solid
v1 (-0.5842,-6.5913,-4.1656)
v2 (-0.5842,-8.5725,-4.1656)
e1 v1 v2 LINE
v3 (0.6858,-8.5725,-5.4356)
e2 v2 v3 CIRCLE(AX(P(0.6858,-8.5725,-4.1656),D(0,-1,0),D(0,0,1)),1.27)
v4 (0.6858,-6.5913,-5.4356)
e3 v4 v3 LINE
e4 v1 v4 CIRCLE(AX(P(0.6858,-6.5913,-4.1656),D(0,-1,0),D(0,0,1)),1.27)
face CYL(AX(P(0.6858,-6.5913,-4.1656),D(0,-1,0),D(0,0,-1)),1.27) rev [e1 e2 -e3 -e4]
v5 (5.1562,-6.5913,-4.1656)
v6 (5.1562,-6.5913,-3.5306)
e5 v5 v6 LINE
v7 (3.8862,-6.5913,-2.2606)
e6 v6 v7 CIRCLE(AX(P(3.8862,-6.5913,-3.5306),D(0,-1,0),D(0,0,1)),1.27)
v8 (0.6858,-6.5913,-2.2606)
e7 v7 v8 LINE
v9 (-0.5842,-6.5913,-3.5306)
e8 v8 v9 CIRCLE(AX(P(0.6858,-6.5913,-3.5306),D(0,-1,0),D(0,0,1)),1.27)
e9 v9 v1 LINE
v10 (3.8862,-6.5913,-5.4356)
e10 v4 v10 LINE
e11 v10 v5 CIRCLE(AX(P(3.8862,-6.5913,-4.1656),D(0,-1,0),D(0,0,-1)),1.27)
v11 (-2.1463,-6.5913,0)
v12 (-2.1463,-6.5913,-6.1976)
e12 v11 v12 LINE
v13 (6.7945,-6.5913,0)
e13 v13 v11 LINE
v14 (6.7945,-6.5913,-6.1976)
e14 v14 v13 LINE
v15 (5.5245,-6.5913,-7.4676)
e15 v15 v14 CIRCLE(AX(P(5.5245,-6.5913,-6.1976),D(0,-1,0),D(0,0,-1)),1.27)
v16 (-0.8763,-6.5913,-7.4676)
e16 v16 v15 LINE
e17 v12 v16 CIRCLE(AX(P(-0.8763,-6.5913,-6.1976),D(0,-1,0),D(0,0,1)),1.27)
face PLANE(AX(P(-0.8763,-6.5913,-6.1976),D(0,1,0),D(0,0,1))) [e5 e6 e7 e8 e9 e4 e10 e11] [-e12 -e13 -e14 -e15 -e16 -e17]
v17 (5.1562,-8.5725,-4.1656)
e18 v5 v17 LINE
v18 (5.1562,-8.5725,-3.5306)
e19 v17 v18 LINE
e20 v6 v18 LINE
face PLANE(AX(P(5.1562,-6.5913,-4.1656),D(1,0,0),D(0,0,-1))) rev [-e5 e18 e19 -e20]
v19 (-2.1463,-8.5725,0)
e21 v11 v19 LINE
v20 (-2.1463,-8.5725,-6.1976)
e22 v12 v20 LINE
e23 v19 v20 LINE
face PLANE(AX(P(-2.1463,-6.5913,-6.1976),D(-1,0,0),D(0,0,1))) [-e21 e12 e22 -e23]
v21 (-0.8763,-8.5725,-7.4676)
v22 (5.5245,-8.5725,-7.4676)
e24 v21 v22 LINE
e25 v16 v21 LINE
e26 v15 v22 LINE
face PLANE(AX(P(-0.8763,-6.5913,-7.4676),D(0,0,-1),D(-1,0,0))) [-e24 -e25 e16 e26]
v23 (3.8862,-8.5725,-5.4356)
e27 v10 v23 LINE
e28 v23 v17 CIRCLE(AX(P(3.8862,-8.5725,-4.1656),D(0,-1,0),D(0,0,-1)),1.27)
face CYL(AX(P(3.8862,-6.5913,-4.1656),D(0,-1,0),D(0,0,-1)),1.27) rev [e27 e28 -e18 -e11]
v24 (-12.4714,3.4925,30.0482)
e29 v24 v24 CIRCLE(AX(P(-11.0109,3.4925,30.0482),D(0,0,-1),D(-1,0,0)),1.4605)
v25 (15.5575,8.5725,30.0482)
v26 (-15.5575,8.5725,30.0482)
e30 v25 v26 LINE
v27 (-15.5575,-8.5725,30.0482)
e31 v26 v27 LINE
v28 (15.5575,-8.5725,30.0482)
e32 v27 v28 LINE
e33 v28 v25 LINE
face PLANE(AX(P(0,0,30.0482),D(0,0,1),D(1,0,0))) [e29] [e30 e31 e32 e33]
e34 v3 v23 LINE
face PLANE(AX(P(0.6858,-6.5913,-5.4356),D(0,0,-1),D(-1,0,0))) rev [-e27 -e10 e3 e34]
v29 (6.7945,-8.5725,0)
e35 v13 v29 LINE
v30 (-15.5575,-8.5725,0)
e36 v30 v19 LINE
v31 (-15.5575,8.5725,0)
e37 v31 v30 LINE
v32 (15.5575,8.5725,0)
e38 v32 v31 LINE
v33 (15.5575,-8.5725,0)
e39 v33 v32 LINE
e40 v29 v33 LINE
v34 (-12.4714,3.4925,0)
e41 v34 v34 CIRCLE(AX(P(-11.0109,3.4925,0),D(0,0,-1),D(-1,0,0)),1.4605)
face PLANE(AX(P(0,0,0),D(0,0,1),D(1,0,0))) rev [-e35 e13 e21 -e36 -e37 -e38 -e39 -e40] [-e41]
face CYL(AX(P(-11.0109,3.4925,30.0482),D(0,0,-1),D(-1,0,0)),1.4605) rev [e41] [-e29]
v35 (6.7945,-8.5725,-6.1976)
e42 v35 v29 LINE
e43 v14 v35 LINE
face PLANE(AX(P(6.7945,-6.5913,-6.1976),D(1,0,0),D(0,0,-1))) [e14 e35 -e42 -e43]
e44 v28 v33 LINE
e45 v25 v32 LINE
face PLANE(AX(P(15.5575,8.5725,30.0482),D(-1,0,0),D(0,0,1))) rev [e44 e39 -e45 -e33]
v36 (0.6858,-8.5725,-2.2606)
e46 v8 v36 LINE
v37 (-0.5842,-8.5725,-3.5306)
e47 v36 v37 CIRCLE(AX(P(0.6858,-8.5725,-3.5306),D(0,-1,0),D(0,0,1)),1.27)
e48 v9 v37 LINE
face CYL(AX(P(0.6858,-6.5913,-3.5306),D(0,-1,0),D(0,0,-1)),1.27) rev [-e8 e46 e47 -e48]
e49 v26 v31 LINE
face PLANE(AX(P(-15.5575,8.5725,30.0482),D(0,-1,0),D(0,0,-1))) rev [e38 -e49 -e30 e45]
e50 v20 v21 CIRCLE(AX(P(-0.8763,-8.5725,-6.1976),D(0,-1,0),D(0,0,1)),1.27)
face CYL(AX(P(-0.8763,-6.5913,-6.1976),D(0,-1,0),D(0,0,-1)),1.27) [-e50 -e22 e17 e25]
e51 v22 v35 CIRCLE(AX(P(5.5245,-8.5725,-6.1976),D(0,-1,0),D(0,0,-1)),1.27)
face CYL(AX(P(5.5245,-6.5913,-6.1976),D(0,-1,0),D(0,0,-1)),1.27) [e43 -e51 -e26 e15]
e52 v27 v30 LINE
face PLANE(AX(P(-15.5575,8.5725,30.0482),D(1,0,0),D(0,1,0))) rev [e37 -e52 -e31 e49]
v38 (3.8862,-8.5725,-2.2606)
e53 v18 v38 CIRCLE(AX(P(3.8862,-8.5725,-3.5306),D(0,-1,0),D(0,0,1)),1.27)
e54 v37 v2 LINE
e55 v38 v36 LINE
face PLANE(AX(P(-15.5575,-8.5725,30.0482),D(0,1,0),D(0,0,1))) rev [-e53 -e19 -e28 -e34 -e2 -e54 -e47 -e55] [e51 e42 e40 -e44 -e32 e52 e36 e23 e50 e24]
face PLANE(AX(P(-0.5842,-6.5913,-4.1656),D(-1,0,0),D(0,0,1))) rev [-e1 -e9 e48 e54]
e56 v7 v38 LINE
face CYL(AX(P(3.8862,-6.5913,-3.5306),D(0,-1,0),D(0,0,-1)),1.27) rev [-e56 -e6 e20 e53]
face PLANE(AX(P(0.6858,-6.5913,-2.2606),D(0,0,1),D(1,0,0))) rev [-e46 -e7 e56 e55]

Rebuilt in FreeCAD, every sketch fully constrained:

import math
import FreeCAD as App
import Part
import Sketcher
from FreeCAD import Vector
Q = App.Units.Quantity

doc = App.newDocument("Part")
body = doc.addObject("PartDesign::Body", "Body")

# Sketch on XY plane
sketch1 = body.newObject("Sketcher::SketchObject", "Sketch")
sketch1.AttachmentSupport = (doc.getObject("XY_Plane"), [""])
sketch1.MapMode = "FlatFace"
sketch1.addGeometry([
    Part.LineSegment(Vector(-16, 9, 0), Vector(-16, -9, 0)),
    Part.LineSegment(Vector(-16, -9, 0), Vector(16, -9, 0)),
    Part.LineSegment(Vector(16, -9, 0), Vector(16, 9, 0)),
    Part.LineSegment(Vector(16, 9, 0), Vector(-16, 9, 0)),
], False)
sketch1.addConstraint([
    Sketcher.Constraint("Coincident", 0, 2, 1, 1),
    Sketcher.Constraint("Coincident", 1, 2, 2, 1),
    Sketcher.Constraint("Coincident", 2, 2, 3, 1),
    Sketcher.Constraint("Coincident", 3, 2, 0, 1),
    Sketcher.Constraint("Vertical", 0),
    Sketcher.Constraint("Horizontal", 1),
    Sketcher.Constraint("Vertical", 2),
    Sketcher.Constraint("Horizontal", 3),
    Sketcher.Constraint("Symmetric", 0, 2, 2, 2, -1, 1),
    Sketcher.Constraint("DistanceX", 1, 1, 1, 2, Q("1.225 in")),
    Sketcher.Constraint("DistanceY", 0, 2, 0, 1, Q("0.675 in")),
])
pad1 = body.newObject("PartDesign::Pad", "Pad")
pad1.Profile = sketch1
pad1.Length = Q("1.183 in")

# Sketch on XZ plane
sketch2 = body.newObject("Sketcher::SketchObject", "Sketch001")
sketch2.AttachmentSupport = (doc.getObject("XZ_Plane"), [""])
sketch2.MapMode = "FlatFace"
sketch2.AttachmentOffset = App.Placement(Vector(0, 0, 0.3375 * 25.4), App.Rotation())
sketch2.addGeometry([
    Part.LineSegment(Vector(-0.9, -7.5, 0), Vector(5.5, -7.5, 0)),  # 0
    Part.ArcOfCircle(Part.Circle(Vector(5.5, -6.2, 0), Vector(0, 0, 1), 1.3), math.radians(-90), math.radians(0)),  # 1
    Part.LineSegment(Vector(6.8, -6.2, 0), Vector(6.8, 0, 0)),  # 2
    Part.LineSegment(Vector(6.8, 0, 0), Vector(-2.1, 0, 0)),  # 3
    Part.LineSegment(Vector(-2.1, 0, 0), Vector(-2.1, -6.2, 0)),  # 4
    Part.ArcOfCircle(Part.Circle(Vector(-0.9, -6.2, 0), Vector(0, 0, 1), 1.3), math.radians(180), math.radians(270)),  # 5
    Part.LineSegment(Vector(3.9, -5.4, 0), Vector(0.7, -5.4, 0)),  # 6
    Part.ArcOfCircle(Part.Circle(Vector(0.7, -4.2, 0), Vector(0, 0, 1), 1.3), math.radians(180), math.radians(270)),  # 7
    Part.LineSegment(Vector(-0.6, -4.2, 0), Vector(-0.6, -3.5, 0)),  # 8
    Part.ArcOfCircle(Part.Circle(Vector(0.7, -3.5, 0), Vector(0, 0, 1), 1.3), math.radians(90), math.radians(180)),  # 9
    Part.LineSegment(Vector(0.7, -2.3, 0), Vector(3.9, -2.3, 0)),  # 10
    Part.ArcOfCircle(Part.Circle(Vector(3.9, -3.5, 0), Vector(0, 0, 1), 1.3), math.radians(0), math.radians(90)),  # 11
    Part.LineSegment(Vector(5.2, -3.5, 0), Vector(5.2, -4.2, 0)),  # 12
    Part.ArcOfCircle(Part.Circle(Vector(3.9, -4.2, 0), Vector(0, 0, 1), 1.3), math.radians(-90), math.radians(0)),  # 13
], False)
sketch2.addConstraint([
    Sketcher.Constraint("Tangent", 0, 2, 1, 1),
    Sketcher.Constraint("Tangent", 1, 2, 2, 1),
    Sketcher.Constraint("Coincident", 2, 2, 3, 1),
    Sketcher.Constraint("Coincident", 3, 2, 4, 1),
    Sketcher.Constraint("Tangent", 4, 2, 5, 1),
    Sketcher.Constraint("Tangent", 5, 2, 0, 1),
    Sketcher.Constraint("Tangent", 6, 2, 7, 2),
    Sketcher.Constraint("Tangent", 7, 1, 8, 1),
    Sketcher.Constraint("Tangent", 8, 2, 9, 2),
    Sketcher.Constraint("Tangent", 9, 1, 10, 1),
    Sketcher.Constraint("Tangent", 10, 2, 11, 2),
    Sketcher.Constraint("Tangent", 11, 1, 12, 1),
    Sketcher.Constraint("Tangent", 12, 2, 13, 2),
    Sketcher.Constraint("Tangent", 13, 1, 6, 1),
    Sketcher.Constraint("Horizontal", 0),
    Sketcher.Constraint("Vertical", 2),
    Sketcher.Constraint("Horizontal", 3),
    Sketcher.Constraint("Vertical", 4),
    Sketcher.Constraint("Horizontal", 6),
    Sketcher.Constraint("Vertical", 8),
    Sketcher.Constraint("Horizontal", 10),
    Sketcher.Constraint("Vertical", 12),
    Sketcher.Constraint("Equal", 1, 5),
    Sketcher.Constraint("Equal", 5, 7),
    Sketcher.Constraint("Equal", 7, 9),
    Sketcher.Constraint("Equal", 9, 11),
    Sketcher.Constraint("Equal", 11, 13),
    Sketcher.Constraint("PointOnObject", 2, 2, -1),
    Sketcher.Constraint("Radius", 1, Q("0.05 in")),
    Sketcher.Constraint("DistanceX", 0, 1, 0, 2, Q("0.252 in")),
    Sketcher.Constraint("DistanceX", 6, 2, 6, 1, Q("0.126 in")),
    Sketcher.Constraint("DistanceY", 2, 1, 2, 2, Q("0.244 in")),
    Sketcher.Constraint("DistanceY", 8, 1, 8, 2, Q("0.025 in")),
    Sketcher.Constraint("DistanceY", 5, 3, 7, 3, Q("0.08 in")),
    Sketcher.Constraint("DistanceX", -1, 1, 7, 3, Q("0.027 in")),
    Sketcher.Constraint("DistanceX", 5, 3, 11, 3, Q("0.1875 in")),
])
pad2 = body.newObject("PartDesign::Pad", "Pad001")
pad2.Profile = sketch2
pad2.Length = Q("0.078 in")
pad2.Reversed = True

# Sketch on XY plane
sketch3 = body.newObject("Sketcher::SketchObject", "Sketch002")
sketch3.AttachmentSupport = (doc.getObject("XY_Plane"), [""])
sketch3.MapMode = "FlatFace"
sketch3.addGeometry(Part.Circle(Vector(-11, 3.5, 0), Vector(0, 0, 1), 1.5), False)
sketch3.addConstraint([
    Sketcher.Constraint("Diameter", 0, Q("0.115 in")),
    Sketcher.Constraint("DistanceX", 0, 3, -1, 1, Q("0.4335 in")),
    Sketcher.Constraint("DistanceY", -1, 1, 0, 3, Q("0.1375 in")),
])
pocket1 = body.newObject("PartDesign::Pocket", "Pocket")
pocket1.Profile = sketch3
pocket1.Type = "ThroughAll"
pocket1.Reversed = True

doc.recompute()
